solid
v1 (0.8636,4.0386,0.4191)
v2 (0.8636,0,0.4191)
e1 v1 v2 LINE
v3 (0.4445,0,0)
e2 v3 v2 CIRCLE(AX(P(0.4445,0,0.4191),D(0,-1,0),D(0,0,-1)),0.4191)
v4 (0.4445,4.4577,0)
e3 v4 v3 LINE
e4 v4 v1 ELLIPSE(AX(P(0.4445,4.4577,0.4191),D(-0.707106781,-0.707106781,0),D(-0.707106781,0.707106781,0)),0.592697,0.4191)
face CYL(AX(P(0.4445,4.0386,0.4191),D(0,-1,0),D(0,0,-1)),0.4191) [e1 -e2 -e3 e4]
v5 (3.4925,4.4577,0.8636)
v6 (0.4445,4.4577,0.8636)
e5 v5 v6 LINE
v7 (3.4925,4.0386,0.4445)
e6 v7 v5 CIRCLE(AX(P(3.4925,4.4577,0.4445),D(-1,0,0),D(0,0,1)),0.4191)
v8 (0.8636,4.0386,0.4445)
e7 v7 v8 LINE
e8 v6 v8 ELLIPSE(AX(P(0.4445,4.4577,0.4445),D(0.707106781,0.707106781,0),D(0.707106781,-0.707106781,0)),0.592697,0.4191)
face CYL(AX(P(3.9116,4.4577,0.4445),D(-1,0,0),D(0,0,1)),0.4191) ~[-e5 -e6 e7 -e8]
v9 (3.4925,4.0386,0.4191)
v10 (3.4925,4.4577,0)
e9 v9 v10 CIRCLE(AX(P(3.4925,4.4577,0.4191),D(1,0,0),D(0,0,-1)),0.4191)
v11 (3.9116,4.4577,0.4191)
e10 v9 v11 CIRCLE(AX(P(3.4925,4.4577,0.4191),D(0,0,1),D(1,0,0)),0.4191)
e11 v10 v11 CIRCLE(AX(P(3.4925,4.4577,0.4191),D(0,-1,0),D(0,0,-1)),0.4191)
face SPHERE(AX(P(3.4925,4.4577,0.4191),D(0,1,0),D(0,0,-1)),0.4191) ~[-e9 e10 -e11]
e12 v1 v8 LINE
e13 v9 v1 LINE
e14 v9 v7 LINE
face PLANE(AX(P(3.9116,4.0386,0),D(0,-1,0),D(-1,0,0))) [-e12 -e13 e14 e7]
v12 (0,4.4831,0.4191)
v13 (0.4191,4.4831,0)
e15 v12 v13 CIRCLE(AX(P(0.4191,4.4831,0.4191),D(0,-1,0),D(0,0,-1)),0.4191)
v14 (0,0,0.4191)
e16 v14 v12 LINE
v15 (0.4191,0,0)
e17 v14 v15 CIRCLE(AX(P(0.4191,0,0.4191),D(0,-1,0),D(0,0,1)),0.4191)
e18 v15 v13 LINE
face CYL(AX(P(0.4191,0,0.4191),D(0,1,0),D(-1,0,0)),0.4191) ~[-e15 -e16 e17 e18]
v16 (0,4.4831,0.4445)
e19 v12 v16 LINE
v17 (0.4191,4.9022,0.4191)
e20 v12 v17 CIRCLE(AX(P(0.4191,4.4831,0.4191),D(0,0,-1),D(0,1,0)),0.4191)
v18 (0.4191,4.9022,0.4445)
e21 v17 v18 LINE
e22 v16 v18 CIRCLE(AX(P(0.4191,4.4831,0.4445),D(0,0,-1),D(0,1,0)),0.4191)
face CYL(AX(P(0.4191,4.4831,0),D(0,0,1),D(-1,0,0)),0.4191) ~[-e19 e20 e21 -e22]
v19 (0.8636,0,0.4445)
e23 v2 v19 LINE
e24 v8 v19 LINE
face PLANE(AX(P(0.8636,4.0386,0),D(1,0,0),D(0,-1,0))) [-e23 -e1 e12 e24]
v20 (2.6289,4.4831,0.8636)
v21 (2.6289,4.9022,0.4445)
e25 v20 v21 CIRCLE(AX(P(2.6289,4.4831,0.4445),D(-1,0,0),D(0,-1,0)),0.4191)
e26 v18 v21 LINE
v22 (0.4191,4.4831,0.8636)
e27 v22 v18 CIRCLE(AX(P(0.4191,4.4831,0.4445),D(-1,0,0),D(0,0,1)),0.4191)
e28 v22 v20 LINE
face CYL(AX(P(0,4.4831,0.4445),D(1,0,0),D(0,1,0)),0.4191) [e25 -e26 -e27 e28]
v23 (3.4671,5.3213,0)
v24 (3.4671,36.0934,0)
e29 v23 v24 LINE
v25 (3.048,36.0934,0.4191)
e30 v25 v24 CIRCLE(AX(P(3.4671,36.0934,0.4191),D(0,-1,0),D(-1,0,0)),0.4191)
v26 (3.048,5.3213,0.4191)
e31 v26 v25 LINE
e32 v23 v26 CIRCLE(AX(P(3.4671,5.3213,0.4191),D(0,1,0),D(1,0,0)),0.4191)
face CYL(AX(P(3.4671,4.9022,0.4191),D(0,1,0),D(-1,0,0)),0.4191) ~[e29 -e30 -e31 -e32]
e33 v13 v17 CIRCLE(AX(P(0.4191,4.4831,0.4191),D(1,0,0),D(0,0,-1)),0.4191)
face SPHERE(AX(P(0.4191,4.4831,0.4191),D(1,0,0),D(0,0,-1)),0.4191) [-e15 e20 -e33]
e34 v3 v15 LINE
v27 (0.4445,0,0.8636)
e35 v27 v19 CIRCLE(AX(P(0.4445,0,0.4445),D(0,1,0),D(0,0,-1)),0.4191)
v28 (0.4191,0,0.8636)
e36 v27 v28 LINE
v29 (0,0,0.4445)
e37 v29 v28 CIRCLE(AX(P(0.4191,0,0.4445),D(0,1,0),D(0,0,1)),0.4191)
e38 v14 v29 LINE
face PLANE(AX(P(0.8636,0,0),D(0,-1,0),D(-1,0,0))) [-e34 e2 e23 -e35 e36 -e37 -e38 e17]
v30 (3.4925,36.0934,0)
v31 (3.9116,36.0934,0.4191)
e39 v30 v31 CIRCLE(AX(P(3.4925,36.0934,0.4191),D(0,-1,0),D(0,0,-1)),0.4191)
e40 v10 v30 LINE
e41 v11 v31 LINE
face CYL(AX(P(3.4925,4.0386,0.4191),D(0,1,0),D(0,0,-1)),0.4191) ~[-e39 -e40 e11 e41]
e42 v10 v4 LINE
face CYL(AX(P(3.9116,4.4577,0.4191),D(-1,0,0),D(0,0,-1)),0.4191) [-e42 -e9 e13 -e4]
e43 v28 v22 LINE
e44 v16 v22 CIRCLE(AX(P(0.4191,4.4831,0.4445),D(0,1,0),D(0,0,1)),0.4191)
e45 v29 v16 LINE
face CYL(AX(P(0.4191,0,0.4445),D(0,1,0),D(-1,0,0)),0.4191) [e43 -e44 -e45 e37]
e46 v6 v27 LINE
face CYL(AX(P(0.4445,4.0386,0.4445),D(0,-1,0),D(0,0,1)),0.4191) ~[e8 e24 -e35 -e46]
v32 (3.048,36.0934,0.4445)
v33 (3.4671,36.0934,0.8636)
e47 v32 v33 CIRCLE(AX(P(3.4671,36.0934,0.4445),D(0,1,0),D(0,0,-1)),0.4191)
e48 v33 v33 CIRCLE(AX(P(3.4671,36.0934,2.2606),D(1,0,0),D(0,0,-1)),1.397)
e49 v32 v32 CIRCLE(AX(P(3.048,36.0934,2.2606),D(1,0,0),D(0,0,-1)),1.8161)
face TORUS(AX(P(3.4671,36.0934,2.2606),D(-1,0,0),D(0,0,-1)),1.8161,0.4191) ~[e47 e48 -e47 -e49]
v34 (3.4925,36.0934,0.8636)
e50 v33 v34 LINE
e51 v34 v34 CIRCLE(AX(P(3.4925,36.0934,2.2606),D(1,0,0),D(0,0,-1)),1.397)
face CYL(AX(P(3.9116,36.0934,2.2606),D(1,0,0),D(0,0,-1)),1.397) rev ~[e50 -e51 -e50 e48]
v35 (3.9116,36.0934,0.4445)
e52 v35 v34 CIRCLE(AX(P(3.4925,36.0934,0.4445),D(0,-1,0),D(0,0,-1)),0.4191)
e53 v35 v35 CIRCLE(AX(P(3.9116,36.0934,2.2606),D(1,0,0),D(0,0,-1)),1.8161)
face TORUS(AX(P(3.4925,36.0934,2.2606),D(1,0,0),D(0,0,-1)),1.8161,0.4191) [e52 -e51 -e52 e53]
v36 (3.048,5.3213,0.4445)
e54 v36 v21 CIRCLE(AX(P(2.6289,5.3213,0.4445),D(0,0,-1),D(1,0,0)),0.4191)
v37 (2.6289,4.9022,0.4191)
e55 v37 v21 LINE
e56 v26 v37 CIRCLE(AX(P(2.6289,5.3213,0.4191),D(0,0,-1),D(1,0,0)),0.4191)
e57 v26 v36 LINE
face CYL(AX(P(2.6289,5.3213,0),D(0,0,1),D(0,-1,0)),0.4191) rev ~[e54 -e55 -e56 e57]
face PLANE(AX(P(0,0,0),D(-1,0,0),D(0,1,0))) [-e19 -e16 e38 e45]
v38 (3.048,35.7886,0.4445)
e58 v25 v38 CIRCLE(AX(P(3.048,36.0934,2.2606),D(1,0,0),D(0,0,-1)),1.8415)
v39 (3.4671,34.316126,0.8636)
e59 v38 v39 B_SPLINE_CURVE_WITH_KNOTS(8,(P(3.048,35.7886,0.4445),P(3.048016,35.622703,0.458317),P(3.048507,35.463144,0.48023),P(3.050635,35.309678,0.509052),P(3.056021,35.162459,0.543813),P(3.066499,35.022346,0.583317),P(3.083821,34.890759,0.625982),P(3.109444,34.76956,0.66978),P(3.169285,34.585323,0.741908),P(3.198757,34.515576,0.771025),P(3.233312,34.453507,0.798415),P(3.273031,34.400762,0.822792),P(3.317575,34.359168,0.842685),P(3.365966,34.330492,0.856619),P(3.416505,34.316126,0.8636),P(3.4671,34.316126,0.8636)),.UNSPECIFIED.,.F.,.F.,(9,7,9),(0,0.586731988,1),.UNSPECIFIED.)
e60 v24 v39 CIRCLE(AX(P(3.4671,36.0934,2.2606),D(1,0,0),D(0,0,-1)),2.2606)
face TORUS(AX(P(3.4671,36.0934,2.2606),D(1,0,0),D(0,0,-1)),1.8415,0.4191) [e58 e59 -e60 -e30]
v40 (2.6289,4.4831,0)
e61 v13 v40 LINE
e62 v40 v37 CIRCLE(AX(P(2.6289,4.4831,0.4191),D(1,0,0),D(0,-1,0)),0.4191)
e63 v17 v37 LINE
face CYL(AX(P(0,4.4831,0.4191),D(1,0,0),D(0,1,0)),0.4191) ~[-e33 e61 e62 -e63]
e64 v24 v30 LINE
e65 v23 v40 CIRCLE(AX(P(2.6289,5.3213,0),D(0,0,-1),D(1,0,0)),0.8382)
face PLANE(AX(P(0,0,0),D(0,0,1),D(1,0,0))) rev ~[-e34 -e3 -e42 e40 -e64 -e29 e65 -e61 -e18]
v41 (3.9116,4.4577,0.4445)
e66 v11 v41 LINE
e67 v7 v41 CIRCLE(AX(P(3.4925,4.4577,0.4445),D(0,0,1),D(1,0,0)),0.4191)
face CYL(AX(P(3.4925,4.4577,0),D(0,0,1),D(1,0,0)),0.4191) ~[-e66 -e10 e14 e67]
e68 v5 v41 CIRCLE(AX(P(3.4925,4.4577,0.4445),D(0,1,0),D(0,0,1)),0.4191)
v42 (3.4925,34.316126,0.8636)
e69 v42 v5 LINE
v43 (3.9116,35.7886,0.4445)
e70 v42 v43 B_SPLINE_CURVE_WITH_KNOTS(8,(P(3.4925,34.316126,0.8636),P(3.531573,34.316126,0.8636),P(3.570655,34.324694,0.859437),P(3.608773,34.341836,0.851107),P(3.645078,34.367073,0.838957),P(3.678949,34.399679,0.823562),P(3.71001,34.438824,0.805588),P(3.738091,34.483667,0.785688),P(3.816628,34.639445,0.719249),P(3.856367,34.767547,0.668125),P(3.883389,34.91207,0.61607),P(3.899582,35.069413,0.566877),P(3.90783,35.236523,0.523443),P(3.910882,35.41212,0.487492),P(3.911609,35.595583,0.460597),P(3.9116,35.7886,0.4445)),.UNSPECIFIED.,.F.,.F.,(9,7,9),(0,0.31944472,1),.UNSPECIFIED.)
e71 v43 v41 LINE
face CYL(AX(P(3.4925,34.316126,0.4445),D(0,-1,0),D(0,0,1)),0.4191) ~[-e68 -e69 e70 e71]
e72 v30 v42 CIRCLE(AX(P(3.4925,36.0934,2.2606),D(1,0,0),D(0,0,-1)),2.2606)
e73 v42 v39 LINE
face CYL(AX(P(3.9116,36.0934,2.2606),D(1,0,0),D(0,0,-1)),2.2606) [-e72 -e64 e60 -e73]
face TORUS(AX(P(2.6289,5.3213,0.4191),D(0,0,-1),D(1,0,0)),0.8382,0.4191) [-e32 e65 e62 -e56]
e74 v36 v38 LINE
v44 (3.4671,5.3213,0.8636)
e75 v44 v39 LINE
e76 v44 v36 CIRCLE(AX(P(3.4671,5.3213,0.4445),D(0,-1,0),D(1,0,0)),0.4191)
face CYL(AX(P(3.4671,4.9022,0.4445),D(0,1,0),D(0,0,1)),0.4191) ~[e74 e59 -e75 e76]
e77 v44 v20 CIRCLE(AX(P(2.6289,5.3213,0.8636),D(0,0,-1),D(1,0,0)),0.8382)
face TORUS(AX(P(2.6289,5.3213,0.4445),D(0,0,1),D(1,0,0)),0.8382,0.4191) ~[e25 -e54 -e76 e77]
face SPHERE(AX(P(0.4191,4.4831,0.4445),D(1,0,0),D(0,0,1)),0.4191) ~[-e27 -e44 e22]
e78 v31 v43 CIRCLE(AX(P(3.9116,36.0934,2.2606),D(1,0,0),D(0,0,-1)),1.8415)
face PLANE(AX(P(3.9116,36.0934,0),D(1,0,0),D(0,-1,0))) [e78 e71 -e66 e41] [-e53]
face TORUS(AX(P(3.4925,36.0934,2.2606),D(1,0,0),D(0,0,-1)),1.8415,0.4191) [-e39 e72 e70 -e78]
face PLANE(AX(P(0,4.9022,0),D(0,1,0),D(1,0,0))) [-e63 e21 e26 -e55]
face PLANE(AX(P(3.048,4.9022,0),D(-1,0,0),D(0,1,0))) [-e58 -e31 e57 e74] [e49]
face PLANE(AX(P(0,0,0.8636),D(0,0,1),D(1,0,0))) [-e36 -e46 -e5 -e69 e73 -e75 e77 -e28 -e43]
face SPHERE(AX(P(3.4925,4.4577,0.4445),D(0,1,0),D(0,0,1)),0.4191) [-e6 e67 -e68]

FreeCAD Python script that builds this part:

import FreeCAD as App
import Part
import Sketcher

V = App.Vector
Q = App.Units.Quantity


def edges_at(feature, points):
    """Names of the edges that pass closest to the given points."""
    edges = feature.Shape.Edges
    near = lambda p: min(range(len(edges)), key=lambda i: edges[i].distToShape(Part.Vertex(*p))[0])
    return sorted({f"Edge{near(p) + 1}" for p in points})

doc = App.newDocument("Part")
params = doc.addObject("Spreadsheet::Sheet", "Params")
for row, (alias, value) in enumerate([
    ("sketch1_width", "0.034 in"),
    ("sketch1_height", "0.193 in"),
    ("sketch1_height2", "1.262 in"),
    ("pad1_length", "0.034 in"),
    ("sketch2_diameter", "0.11 in"),
    ("sketch2_diameter2", "0.178 in"),
    ("pad2_length", "0.034 in"),
    ("fillet_radius", "0.0165 in"),
], start=1):
    params.set(f"A{row}", alias)
    params.set(f"B{row}", "=" + value)
    params.setAlias(f"B{row}", alias)

body = doc.addObject("PartDesign::Body", "Body")

# Sketch on XY plane
sketch1 = body.newObject("Sketcher::SketchObject", "Sketch")
sketch1.AttachmentSupport = (doc.getObject("XY_Plane"), [""])
sketch1.MapMode = "FlatFace"
sketch1.addGeometry([
    Part.LineSegment(V(0, 4.9022, 0), V(0, 0, 0)),  # 0
    Part.LineSegment(V(0, 0, 0), V(0.8636, 0, 0)),  # 1
    Part.LineSegment(V(0.8636, 0, 0), V(0.8636, 4.0386, 0)),  # 2
    Part.LineSegment(V(0.8636, 4.0386, 0), V(3.9116, 4.0386, 0)),  # 3
    Part.LineSegment(V(3.9116, 4.0386, 0), V(3.9116, 36.0934, 0)),  # 4
    Part.LineSegment(V(3.9116, 36.0934, 0), V(3.048, 36.0934, 0)),  # 5
    Part.LineSegment(V(3.048, 36.0934, 0), V(3.048, 4.9022, 0)),  # 6
    Part.LineSegment(V(3.048, 4.9022, 0), V(0, 4.9022, 0)),  # 7
], False)
sketch1.addConstraint([
    Sketcher.Constraint("Coincident", 0, 2, 1, 1),
    Sketcher.Constraint("Coincident", 1, 2, 2, 1),
    Sketcher.Constraint("Coincident", 2, 2, 3, 1),
    Sketcher.Constraint("Coincident", 3, 2, 4, 1),
    Sketcher.Constraint("Coincident", 4, 2, 5, 1),
    Sketcher.Constraint("Coincident", 5, 2, 6, 1),
    Sketcher.Constraint("Coincident", 6, 2, 7, 1),
    Sketcher.Constraint("Coincident", 7, 2, 0, 1),
    Sketcher.Constraint("Vertical", 0),
    Sketcher.Constraint("Horizontal", 1),
    Sketcher.Constraint("Vertical", 2),
    Sketcher.Constraint("Horizontal", 3),
    Sketcher.Constraint("Vertical", 4),
    Sketcher.Constraint("Horizontal", 5),
    Sketcher.Constraint("Vertical", 6),
    Sketcher.Constraint("Horizontal", 7),
    Sketcher.Constraint("Coincident", 0, 2, -1, 1),
    Sketcher.Constraint("Equal", 1, 5),
    Sketcher.Constraint("DistanceX", 1, 1, 1, 2, Q("0.034 in")),
    Sketcher.Constraint("DistanceY", 0, 2, 0, 1, Q("0.193 in")),
    Sketcher.Constraint("DistanceY", 4, 1, 4, 2, Q("1.262 in")),
    Sketcher.Constraint("DistanceX", -1, 1, 3, 2, Q("0.154 in")),
    Sketcher.Constraint("DistanceY", 3, 2, 6, 2, Q("0.034 in")),
])
sketch1.setExpression("Constraints[18]", "Params.sketch1_width")
sketch1.setExpression("Constraints[19]", "Params.sketch1_height")
sketch1.setExpression("Constraints[20]", "Params.sketch1_height2")
pad1 = body.newObject("PartDesign::Pad", "Pad")
pad1.Profile = sketch1
pad1.setExpression("Length", "Params.pad1_length")

# Sketch on YZ plane
sketch2 = body.newObject("Sketcher::SketchObject", "Sketch001")
sketch2.AttachmentSupport = (doc.getObject("YZ_Plane"), [""])
sketch2.MapMode = "FlatFace"
sketch2.AttachmentOffset = App.Placement(V(0, 0, 0.154 * 25.4), App.Rotation())
sketch2.addGeometry([
    Part.Circle(V(36.0934, 2.2606, 0), V(0, 0, 1), 2.2606),
    Part.Circle(V(36.0934, 2.2606, 0), V(0, 0, 1), 1.397),
], False)
sketch2.addConstraint([
    Sketcher.Constraint("Coincident", 1, 3, 0, 3),
    Sketcher.Constraint("Diameter", 1, Q("0.11 in")),
    Sketcher.Constraint("Diameter", 0, Q("0.178 in")),
    Sketcher.Constraint("DistanceX", -1, 1, 0, 3, Q("1.421 in")),
    Sketcher.Constraint("DistanceY", -1, 1, 0, 3, Q("0.089 in")),
])
sketch2.setExpression("Constraints[1]", "Params.sketch2_diameter")
sketch2.setExpression("Constraints[2]", "Params.sketch2_diameter2")
pad2 = body.newObject("PartDesign::Pad", "Pad001")
pad2.Profile = sketch2
pad2.setExpression("Length", "Params.pad2_length")
pad2.Reversed = True
doc.recompute()

fillet = body.newObject("PartDesign::Fillet", "Fillet")
fillet.Base = (pad2, edges_at(pad2, [
    (3.912, 37.081, 4.294),
    (3.912, 20.066, 0),
    (3.048, 37.081, 4.294),
    (3.048, 20.498, 0),
    (3.912, 19.177, 0.864),
    (3.048, 19.609, 0.864),
    (1.524, 4.902, 0),
    (2.388, 4.039, 0),
    (1.524, 4.902, 0.864),
    (0.864, 2.019, 0),
    (0, 2.451, 0),
    (0.864, 2.019, 0.864),
    (0, 2.451, 0.864),
    (2.388, 4.039, 0.864),
    (0, 4.902, 0.432),
    (3.912, 4.039, 0.432),
    (3.048, 4.902, 0.432),
    (3.912, 36.093, 3.658),
    (3.048, 36.093, 3.658),
]))
fillet.setExpression("Radius", "Params.fillet_radius")

doc.recompute()
